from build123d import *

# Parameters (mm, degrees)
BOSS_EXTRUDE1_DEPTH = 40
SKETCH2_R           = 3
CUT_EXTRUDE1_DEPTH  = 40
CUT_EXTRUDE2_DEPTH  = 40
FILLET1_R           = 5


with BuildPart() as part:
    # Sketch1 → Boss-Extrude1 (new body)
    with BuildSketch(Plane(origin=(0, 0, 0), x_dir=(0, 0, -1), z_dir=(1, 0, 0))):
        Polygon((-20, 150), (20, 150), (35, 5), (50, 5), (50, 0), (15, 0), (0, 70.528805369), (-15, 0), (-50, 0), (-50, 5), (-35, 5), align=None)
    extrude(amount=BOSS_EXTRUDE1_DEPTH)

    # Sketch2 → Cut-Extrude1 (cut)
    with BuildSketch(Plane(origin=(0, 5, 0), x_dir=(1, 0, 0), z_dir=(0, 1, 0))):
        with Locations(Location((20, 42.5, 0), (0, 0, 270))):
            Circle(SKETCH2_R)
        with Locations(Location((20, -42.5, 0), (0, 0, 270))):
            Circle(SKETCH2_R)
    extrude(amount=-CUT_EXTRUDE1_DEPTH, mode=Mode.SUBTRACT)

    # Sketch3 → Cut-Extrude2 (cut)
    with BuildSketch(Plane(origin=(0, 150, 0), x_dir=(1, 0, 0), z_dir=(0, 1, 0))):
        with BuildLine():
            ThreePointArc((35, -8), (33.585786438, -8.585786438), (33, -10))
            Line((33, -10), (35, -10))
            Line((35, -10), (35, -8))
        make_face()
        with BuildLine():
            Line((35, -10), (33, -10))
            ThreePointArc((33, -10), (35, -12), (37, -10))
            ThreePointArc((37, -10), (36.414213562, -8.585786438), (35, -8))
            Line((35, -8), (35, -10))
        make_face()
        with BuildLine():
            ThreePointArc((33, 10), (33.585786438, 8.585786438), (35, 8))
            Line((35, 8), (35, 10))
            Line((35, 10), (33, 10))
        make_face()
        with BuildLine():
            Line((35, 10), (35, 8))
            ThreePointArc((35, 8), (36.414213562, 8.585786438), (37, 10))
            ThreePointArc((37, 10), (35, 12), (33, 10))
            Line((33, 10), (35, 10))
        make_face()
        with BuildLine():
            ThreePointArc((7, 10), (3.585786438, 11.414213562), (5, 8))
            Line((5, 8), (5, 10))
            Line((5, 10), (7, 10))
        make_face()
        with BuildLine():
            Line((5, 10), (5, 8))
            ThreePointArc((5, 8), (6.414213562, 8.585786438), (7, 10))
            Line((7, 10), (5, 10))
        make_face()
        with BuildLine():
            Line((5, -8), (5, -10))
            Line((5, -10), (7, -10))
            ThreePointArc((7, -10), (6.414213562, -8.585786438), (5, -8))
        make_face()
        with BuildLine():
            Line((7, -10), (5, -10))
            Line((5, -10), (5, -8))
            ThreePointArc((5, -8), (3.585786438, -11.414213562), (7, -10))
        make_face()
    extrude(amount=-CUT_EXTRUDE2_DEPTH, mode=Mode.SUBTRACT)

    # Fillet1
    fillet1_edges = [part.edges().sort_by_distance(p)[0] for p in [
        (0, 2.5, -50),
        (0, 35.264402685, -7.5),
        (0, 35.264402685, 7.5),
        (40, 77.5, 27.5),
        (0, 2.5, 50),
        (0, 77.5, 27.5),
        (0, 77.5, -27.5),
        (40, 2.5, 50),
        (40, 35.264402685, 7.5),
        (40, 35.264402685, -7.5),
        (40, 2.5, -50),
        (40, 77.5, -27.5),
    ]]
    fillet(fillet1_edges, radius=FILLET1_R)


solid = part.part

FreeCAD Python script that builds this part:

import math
import FreeCAD as App
import Part
import Sketcher
Q = App.Units.Quantity


def edges_at(feature, points):
    """Names of the edges that pass closest to the given points."""
    edges = feature.Shape.Edges
    near = lambda p: min(range(len(edges)), key=lambda i: edges[i].distToShape(Part.Vertex(*p))[0])
    return sorted({f"Edge{near(p) + 1}" for p in points})

doc = App.newDocument("Part")
params = doc.addObject("Spreadsheet::Sheet", "Params")
for row, (alias, value) in enumerate([
    ("sketch1_width", "5 mm"),
    ("sketch1_height", "40 mm"),
    ("sketch1_height2", "15 mm"),
    ("sketch1_height3", "35 mm"),
    ("pad1_length", "40 mm"),
    ("sketch2_diameter", "6 mm"),
    ("pocket1_length", "40 mm"),
    ("sketch3_radius", "2 mm"),
    ("pocket2_length", "40 mm"),
    ("fillet_radius", "5 mm"),
], start=1):
    params.set(f"A{row}", alias)
    params.set(f"B{row}", "=" + value)
    params.setAlias(f"B{row}", alias)

body = doc.addObject("PartDesign::Body", "Body")

# Sketch on YZ plane
sketch1 = body.newObject("Sketcher::SketchObject", "Sketch")
sketch1.AttachmentSupport = (doc.getObject("YZ_Plane"), [""])
sketch1.MapMode = "FlatFace"
sketch1.addGeometry([
    Part.LineSegment(App.Vector(150, -20, 0), App.Vector(150, 20, 0)),  # 0
    Part.LineSegment(App.Vector(150, 20, 0), App.Vector(5, 35, 0)),  # 1
    Part.LineSegment(App.Vector(5, 35, 0), App.Vector(5, 50, 0)),  # 2
    Part.LineSegment(App.Vector(5, 50, 0), App.Vector(0, 50, 0)),  # 3
    Part.LineSegment(App.Vector(0, 50, 0), App.Vector(0, 15, 0)),  # 4
    Part.LineSegment(App.Vector(0, 15, 0), App.Vector(71, 0, 0)),  # 5
    Part.LineSegment(App.Vector(71, 0, 0), App.Vector(0, -15, 0)),  # 6
    Part.LineSegment(App.Vector(0, -15, 0), App.Vector(0, -50, 0)),  # 7
    Part.LineSegment(App.Vector(0, -50, 0), App.Vector(5, -50, 0)),  # 8
    Part.LineSegment(App.Vector(5, -50, 0), App.Vector(5, -35, 0)),  # 9
    Part.LineSegment(App.Vector(5, -35, 0), App.Vector(150, -20, 0)),  # 10
], False)
sketch1.addConstraint([
    Sketcher.Constraint("Coincident", 0, 2, 1, 1),
    Sketcher.Constraint("Coincident", 1, 2, 2, 1),
    Sketcher.Constraint("Coincident", 2, 2, 3, 1),
    Sketcher.Constraint("Coincident", 3, 2, 4, 1),
    Sketcher.Constraint("Coincident", 4, 2, 5, 1),
    Sketcher.Constraint("Coincident", 5, 2, 6, 1),
    Sketcher.Constraint("Coincident", 6, 2, 7, 1),
    Sketcher.Constraint("Coincident", 7, 2, 8, 1),
    Sketcher.Constraint("Coincident", 8, 2, 9, 1),
    Sketcher.Constraint("Coincident", 9, 2, 10, 1),
    Sketcher.Constraint("Coincident", 10, 2, 0, 1),
    Sketcher.Constraint("Vertical", 0),
    Sketcher.Constraint("Vertical", 2),
    Sketcher.Constraint("Horizontal", 3),
    Sketcher.Constraint("Vertical", 4),
    Sketcher.Constraint("Vertical", 7),
    Sketcher.Constraint("Horizontal", 8),
    Sketcher.Constraint("Vertical", 9),
    Sketcher.Constraint("Symmetric", 4, 2, 6, 2, -1, 1),
    Sketcher.Constraint("Symmetric", 3, 2, 7, 2, -1),
    Sketcher.Constraint("Symmetric", 1, 2, 9, 2, -1),
    Sketcher.Constraint("PointOnObject", 5, 2, -1),
    Sketcher.Constraint("Equal", 1, 10),
    Sketcher.Constraint("DistanceX", 3, 2, 3, 1, Q("5 mm")),
    Sketcher.Constraint("DistanceY", 0, 1, 0, 2, Q("40 mm")),
    Sketcher.Constraint("DistanceY", 2, 1, 2, 2, Q("15 mm")),
    Sketcher.Constraint("DistanceY", 4, 2, 4, 1, Q("35 mm")),
    Sketcher.Constraint("DistanceX", -1, 1, 0, 2, Q("150 mm")),
    Sketcher.Constraint("DistanceY", -1, 1, 1, 2, Q("35 mm")),
    Sketcher.Constraint("Distance", 5, Q("72.106258 mm")),
])
sketch1.setExpression("Constraints[23]", "Params.sketch1_width")
sketch1.setExpression("Constraints[24]", "Params.sketch1_height")
sketch1.setExpression("Constraints[25]", "Params.sketch1_height2")
sketch1.setExpression("Constraints[26]", "Params.sketch1_height3")
pad1 = body.newObject("PartDesign::Pad", "Pad")
pad1.Profile = sketch1
pad1.setExpression("Length", "Params.pad1_length")

# Sketch on XZ plane
sketch2 = body.newObject("Sketcher::SketchObject", "Sketch001")
sketch2.AttachmentSupport = (doc.getObject("XZ_Plane"), [""])
sketch2.MapMode = "FlatFace"
sketch2.AttachmentOffset = App.Placement(App.Vector(0, 0, -5), App.Rotation())
sketch2.addGeometry([
    Part.Circle(App.Vector(20, -42.5, 0), App.Vector(0, 0, 1), 3),
    Part.Circle(App.Vector(20, 42.5, 0), App.Vector(0, 0, 1), 3),
], False)
sketch2.addConstraint([
    Sketcher.Constraint("Equal", 0, 1),
    Sketcher.Constraint("Symmetric", 0, 3, 1, 3, -1),
    Sketcher.Constraint("Diameter", 0, Q("6 mm")),
    Sketcher.Constraint("DistanceX", -1, 1, 0, 3, Q("20 mm")),
    Sketcher.Constraint("DistanceY", 0, 3, 1, 3, Q("85 mm")),
])
sketch2.setExpression("Constraints[2]", "Params.sketch2_diameter")
pocket1 = body.newObject("PartDesign::Pocket", "Pocket")
pocket1.Profile = sketch2
pocket1.setExpression("Length", "Params.pocket1_length")
pocket1.Reversed = True

# Sketch on XZ plane
sketch3 = body.newObject("Sketcher::SketchObject", "Sketch002")
sketch3.AttachmentSupport = (doc.getObject("XZ_Plane"), [""])
sketch3.MapMode = "FlatFace"
sketch3.AttachmentOffset = App.Placement(App.Vector(0, 0, -150), App.Rotation())
sketch3.addGeometry([
    Part.ArcOfCircle(Part.Circle(App.Vector(35, 10, 0), App.Vector(0, 0, 1), 2), math.radians(-180), math.radians(-90)),  # 0
    Part.ArcOfCircle(Part.Circle(App.Vector(35, 10, 0), App.Vector(0, 0, 1), 2), math.radians(0), math.radians(180)),  # 1
    Part.ArcOfCircle(Part.Circle(App.Vector(35, 10, 0), App.Vector(0, 0, 1), 2), math.radians(-90), math.radians(0)),  # 2
    Part.ArcOfCircle(Part.Circle(App.Vector(35, -10, 0), App.Vector(0, 0, 1), 2), math.radians(90), math.radians(180)),  # 3
    Part.ArcOfCircle(Part.Circle(App.Vector(35, -10, 0), App.Vector(0, 0, 1), 2), math.radians(0), math.radians(90)),  # 4
    Part.ArcOfCircle(Part.Circle(App.Vector(35, -10, 0), App.Vector(0, 0, 1), 2), math.radians(180), math.radians(360)),  # 5
    Part.ArcOfCircle(Part.Circle(App.Vector(5, -10, 0), App.Vector(0, 0, 1), 2), math.radians(90), math.radians(360)),  # 6
    Part.ArcOfCircle(Part.Circle(App.Vector(5, -10, 0), App.Vector(0, 0, 1), 2), math.radians(0), math.radians(90)),  # 7
    Part.ArcOfCircle(Part.Circle(App.Vector(5, 10, 0), App.Vector(0, 0, 1), 2), math.radians(-90), math.radians(0)),  # 8
    Part.ArcOfCircle(Part.Circle(App.Vector(5, 10, 0), App.Vector(0, 0, 1), 2), math.radians(0), math.radians(270)),  # 9
], False)
sketch3.addConstraint([
    Sketcher.Constraint("Tangent", 0, 1, 1, 2),
    Sketcher.Constraint("Tangent", 1, 1, 2, 2),
    Sketcher.Constraint("Tangent", 2, 1, 0, 2),
    Sketcher.Constraint("Tangent", 3, 1, 4, 2),
    Sketcher.Constraint("Tangent", 4, 1, 5, 2),
    Sketcher.Constraint("Tangent", 5, 1, 3, 2),
    Sketcher.Constraint("Tangent", 6, 1, 7, 2),
    Sketcher.Constraint("Coincident", 7, 1, 6, 2),
    Sketcher.Constraint("Tangent", 8, 1, 9, 2),
    Sketcher.Constraint("Coincident", 9, 1, 8, 2),
    Sketcher.Constraint("Equal", 2, 3),
    Sketcher.Constraint("Equal", 5, 6),
    Sketcher.Constraint("Equal", 7, 8),
    Sketcher.Constraint("Symmetric", 0, 3, 3, 3, -1),
    Sketcher.Constraint("Symmetric", 6, 3, 8, 3, -1),
    Sketcher.Constraint("Horizontal", 5, 3, 6, 3),
    Sketcher.Constraint("Horizontal", 9, 3, 0, 1),
    Sketcher.Constraint("Horizontal", 0, 1, 1, 1),
    Sketcher.Constraint("Horizontal", 7, 3, 4, 1),
    Sketcher.Constraint("Horizontal", 4, 1, 5, 1),
    Sketcher.Constraint("Horizontal", 5, 1, 7, 1),
    Sketcher.Constraint("Horizontal", 1, 1, 9, 1),
    Sketcher.Constraint("Vertical", 5, 3, 2, 1),
    Sketcher.Constraint("Vertical", 2, 1, 3, 1),
    Sketcher.Constraint("Vertical", 9, 3, 6, 1),
    Sketcher.Constraint("Vertical", 6, 1, 8, 1),
    Sketcher.Constraint("Radius", 0, Q("2 mm")),
    Sketcher.Constraint("DistanceX", -1, 1, 0, 3, Q("35 mm")),
    Sketcher.Constraint("DistanceY", -1, 1, 0, 3, Q("10 mm")),
    Sketcher.Constraint("DistanceX", -1, 1, 6, 3, Q("5 mm")),
])
sketch3.setExpression("Constraints[26]", "Params.sketch3_radius")
pocket2 = body.newObject("PartDesign::Pocket", "Pocket001")
pocket2.Profile = sketch3
pocket2.setExpression("Length", "Params.pocket2_length")
pocket2.Reversed = True
doc.recompute()

fillet = body.newObject("PartDesign::Fillet", "Fillet")
fillet.Base = (pocket2, edges_at(pocket2, [
    (0, 2.5, -50),
    (0, 35.264, -7.5),
    (0, 35.264, 7.5),
    (40, 77.5, 27.5),
    (0, 2.5, 50),
    (0, 77.5, 27.5),
    (0, 77.5, -27.5),
    (40, 2.5, 50),
    (40, 35.264, 7.5),
    (40, 35.264, -7.5),
    (40, 2.5, -50),
    (40, 77.5, -27.5),
]))
fillet.setExpression("Radius", "Params.fillet_radius")

doc.recompute()
